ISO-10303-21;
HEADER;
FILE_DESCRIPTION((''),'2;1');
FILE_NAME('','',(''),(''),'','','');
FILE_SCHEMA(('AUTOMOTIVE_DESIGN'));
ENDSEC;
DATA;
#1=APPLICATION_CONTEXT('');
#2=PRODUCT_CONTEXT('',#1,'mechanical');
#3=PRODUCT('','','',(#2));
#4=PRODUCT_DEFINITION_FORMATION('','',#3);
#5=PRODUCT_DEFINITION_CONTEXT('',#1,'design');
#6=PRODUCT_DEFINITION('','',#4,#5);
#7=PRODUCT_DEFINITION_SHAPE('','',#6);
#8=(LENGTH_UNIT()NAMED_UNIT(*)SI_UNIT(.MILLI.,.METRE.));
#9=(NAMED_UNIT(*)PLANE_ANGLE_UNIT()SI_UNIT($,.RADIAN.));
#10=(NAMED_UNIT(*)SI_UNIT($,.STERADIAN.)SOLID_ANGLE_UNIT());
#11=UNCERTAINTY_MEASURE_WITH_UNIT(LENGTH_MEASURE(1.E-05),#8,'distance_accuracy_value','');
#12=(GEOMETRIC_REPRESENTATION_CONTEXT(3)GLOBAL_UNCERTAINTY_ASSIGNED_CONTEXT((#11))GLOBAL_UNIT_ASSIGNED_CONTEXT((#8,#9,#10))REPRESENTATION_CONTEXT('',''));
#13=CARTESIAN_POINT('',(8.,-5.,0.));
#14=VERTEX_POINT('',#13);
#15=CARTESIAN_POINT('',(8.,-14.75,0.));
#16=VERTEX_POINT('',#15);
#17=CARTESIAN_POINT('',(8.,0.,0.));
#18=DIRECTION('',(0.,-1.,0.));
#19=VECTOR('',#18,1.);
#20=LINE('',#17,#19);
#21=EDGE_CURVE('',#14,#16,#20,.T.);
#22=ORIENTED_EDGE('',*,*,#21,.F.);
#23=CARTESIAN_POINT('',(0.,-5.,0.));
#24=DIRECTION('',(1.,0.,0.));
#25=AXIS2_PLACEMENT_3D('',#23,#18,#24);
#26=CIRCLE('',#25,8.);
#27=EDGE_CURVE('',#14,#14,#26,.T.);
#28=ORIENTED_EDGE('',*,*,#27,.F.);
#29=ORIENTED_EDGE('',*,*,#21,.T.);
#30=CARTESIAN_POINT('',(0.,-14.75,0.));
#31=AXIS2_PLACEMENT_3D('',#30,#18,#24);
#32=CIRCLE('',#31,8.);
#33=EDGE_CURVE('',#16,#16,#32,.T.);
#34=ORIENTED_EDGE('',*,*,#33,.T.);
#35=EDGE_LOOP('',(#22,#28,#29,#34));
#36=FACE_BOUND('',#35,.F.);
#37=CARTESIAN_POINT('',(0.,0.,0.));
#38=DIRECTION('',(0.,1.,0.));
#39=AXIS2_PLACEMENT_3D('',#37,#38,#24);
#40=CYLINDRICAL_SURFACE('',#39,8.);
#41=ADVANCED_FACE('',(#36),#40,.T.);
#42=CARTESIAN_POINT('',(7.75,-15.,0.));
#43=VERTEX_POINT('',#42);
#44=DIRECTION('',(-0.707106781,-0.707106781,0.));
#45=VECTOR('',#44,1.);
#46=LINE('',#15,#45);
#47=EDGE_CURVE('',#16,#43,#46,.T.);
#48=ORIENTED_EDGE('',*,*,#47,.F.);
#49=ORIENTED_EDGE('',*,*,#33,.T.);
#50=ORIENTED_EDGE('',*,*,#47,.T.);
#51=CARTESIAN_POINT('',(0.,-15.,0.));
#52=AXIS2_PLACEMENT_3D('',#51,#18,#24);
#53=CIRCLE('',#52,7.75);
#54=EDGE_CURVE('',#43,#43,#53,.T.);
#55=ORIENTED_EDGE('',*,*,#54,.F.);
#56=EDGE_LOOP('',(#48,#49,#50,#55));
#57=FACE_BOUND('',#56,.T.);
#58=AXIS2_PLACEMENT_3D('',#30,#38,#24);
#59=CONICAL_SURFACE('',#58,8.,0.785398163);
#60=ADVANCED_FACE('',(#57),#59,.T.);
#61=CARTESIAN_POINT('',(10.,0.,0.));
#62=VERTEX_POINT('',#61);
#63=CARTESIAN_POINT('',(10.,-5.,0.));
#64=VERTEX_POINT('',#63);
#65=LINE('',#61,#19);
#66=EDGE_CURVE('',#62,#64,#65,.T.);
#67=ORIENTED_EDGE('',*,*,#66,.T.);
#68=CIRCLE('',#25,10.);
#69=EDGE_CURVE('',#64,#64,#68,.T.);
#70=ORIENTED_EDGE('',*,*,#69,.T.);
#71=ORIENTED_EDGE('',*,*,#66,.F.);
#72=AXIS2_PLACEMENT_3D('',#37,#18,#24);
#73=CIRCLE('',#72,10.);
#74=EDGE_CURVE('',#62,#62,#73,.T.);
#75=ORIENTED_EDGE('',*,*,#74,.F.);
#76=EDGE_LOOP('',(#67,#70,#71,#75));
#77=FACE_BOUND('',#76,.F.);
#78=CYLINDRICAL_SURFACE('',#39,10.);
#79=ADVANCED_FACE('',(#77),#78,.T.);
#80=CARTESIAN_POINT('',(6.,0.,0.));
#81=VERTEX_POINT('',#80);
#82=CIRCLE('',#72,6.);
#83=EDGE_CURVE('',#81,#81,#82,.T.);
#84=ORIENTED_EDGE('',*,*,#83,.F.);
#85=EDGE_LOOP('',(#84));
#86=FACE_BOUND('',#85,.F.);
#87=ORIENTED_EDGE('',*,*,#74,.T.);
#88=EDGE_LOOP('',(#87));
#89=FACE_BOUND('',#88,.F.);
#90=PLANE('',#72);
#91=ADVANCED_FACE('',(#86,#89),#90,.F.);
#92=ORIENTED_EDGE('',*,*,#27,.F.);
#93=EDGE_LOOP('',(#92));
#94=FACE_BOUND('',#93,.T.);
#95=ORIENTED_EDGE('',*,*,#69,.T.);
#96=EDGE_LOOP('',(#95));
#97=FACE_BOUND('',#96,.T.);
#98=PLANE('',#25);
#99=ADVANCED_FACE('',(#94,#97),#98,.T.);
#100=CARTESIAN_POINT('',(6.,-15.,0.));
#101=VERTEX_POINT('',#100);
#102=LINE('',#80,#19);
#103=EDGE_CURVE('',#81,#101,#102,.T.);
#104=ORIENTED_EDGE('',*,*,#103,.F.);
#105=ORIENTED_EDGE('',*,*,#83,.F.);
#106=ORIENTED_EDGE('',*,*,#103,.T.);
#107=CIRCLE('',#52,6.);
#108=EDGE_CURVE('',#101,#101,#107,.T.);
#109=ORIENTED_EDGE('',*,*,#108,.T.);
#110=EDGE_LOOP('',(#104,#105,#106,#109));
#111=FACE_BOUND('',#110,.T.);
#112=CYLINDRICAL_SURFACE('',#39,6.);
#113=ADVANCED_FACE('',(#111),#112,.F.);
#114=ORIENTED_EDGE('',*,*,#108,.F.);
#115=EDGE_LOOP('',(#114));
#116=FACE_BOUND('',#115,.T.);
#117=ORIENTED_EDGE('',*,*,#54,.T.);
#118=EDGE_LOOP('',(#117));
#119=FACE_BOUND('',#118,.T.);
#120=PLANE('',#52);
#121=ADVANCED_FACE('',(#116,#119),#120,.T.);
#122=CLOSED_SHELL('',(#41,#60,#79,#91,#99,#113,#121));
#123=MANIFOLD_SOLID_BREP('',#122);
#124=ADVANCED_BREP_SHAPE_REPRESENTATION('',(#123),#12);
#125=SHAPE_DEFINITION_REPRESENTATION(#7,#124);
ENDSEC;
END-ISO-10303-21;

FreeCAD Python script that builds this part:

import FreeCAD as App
import Part
import Sketcher
from FreeCAD import Vector
Q = App.Units.Quantity


def edges_at(feature, points):
    """Names of the edges that pass closest to the given points."""
    edges = feature.Shape.Edges
    near = lambda p: min(range(len(edges)), key=lambda i: edges[i].distToShape(Part.Vertex(*p))[0])
    return sorted({f"Edge{near(p) + 1}" for p in points})

doc = App.newDocument("Part")
body = doc.addObject("PartDesign::Body", "Body")

# Sketch on XZ plane
sketch1 = body.newObject("Sketcher::SketchObject", "Sketch")
sketch1.AttachmentSupport = (doc.getObject("XZ_Plane"), [""])
sketch1.MapMode = "FlatFace"
sketch1.addGeometry([
    Part.Circle(Vector(0, 0, 0), Vector(0, 0, 1), 8),
    Part.Circle(Vector(0, 0, 0), Vector(0, 0, 1), 6),
], False)
sketch1.addConstraint([
    Sketcher.Constraint("Coincident", 0, 3, -1, 1),
    Sketcher.Constraint("Coincident", 1, 3, -1, 1),
    Sketcher.Constraint("Diameter", 0, Q("16 mm")),
    Sketcher.Constraint("Diameter", 1, Q("12 mm")),
])
pad1 = body.newObject("PartDesign::Pad", "Pad")
pad1.Profile = sketch1
pad1.Length = 15

# Sketch on XZ plane
sketch2 = body.newObject("Sketcher::SketchObject", "Sketch001")
sketch2.AttachmentSupport = (doc.getObject("XZ_Plane"), [""])
sketch2.MapMode = "FlatFace"
sketch2.addGeometry([
    Part.Circle(Vector(0, 0, 0), Vector(0, 0, 1), 10),
    Part.Circle(Vector(0, 0, 0), Vector(0, 0, 1), 8),
], False)
sketch2.addConstraint([
    Sketcher.Constraint("Coincident", 0, 3, -1, 1),
    Sketcher.Constraint("Coincident", 1, 3, -1, 1),
    Sketcher.Constraint("Diameter", 0, Q("20 mm")),
    Sketcher.Constraint("Diameter", 1, Q("16 mm")),
])
pad2 = body.newObject("PartDesign::Pad", "Pad001")
pad2.Profile = sketch2
pad2.Length = 5
doc.recompute()

chamfer = body.newObject("PartDesign::Chamfer", "Chamfer")
chamfer.Base = (pad2, edges_at(pad2, [(-8, -15, 0)]))
chamfer.Size = 0.25

doc.recompute()
